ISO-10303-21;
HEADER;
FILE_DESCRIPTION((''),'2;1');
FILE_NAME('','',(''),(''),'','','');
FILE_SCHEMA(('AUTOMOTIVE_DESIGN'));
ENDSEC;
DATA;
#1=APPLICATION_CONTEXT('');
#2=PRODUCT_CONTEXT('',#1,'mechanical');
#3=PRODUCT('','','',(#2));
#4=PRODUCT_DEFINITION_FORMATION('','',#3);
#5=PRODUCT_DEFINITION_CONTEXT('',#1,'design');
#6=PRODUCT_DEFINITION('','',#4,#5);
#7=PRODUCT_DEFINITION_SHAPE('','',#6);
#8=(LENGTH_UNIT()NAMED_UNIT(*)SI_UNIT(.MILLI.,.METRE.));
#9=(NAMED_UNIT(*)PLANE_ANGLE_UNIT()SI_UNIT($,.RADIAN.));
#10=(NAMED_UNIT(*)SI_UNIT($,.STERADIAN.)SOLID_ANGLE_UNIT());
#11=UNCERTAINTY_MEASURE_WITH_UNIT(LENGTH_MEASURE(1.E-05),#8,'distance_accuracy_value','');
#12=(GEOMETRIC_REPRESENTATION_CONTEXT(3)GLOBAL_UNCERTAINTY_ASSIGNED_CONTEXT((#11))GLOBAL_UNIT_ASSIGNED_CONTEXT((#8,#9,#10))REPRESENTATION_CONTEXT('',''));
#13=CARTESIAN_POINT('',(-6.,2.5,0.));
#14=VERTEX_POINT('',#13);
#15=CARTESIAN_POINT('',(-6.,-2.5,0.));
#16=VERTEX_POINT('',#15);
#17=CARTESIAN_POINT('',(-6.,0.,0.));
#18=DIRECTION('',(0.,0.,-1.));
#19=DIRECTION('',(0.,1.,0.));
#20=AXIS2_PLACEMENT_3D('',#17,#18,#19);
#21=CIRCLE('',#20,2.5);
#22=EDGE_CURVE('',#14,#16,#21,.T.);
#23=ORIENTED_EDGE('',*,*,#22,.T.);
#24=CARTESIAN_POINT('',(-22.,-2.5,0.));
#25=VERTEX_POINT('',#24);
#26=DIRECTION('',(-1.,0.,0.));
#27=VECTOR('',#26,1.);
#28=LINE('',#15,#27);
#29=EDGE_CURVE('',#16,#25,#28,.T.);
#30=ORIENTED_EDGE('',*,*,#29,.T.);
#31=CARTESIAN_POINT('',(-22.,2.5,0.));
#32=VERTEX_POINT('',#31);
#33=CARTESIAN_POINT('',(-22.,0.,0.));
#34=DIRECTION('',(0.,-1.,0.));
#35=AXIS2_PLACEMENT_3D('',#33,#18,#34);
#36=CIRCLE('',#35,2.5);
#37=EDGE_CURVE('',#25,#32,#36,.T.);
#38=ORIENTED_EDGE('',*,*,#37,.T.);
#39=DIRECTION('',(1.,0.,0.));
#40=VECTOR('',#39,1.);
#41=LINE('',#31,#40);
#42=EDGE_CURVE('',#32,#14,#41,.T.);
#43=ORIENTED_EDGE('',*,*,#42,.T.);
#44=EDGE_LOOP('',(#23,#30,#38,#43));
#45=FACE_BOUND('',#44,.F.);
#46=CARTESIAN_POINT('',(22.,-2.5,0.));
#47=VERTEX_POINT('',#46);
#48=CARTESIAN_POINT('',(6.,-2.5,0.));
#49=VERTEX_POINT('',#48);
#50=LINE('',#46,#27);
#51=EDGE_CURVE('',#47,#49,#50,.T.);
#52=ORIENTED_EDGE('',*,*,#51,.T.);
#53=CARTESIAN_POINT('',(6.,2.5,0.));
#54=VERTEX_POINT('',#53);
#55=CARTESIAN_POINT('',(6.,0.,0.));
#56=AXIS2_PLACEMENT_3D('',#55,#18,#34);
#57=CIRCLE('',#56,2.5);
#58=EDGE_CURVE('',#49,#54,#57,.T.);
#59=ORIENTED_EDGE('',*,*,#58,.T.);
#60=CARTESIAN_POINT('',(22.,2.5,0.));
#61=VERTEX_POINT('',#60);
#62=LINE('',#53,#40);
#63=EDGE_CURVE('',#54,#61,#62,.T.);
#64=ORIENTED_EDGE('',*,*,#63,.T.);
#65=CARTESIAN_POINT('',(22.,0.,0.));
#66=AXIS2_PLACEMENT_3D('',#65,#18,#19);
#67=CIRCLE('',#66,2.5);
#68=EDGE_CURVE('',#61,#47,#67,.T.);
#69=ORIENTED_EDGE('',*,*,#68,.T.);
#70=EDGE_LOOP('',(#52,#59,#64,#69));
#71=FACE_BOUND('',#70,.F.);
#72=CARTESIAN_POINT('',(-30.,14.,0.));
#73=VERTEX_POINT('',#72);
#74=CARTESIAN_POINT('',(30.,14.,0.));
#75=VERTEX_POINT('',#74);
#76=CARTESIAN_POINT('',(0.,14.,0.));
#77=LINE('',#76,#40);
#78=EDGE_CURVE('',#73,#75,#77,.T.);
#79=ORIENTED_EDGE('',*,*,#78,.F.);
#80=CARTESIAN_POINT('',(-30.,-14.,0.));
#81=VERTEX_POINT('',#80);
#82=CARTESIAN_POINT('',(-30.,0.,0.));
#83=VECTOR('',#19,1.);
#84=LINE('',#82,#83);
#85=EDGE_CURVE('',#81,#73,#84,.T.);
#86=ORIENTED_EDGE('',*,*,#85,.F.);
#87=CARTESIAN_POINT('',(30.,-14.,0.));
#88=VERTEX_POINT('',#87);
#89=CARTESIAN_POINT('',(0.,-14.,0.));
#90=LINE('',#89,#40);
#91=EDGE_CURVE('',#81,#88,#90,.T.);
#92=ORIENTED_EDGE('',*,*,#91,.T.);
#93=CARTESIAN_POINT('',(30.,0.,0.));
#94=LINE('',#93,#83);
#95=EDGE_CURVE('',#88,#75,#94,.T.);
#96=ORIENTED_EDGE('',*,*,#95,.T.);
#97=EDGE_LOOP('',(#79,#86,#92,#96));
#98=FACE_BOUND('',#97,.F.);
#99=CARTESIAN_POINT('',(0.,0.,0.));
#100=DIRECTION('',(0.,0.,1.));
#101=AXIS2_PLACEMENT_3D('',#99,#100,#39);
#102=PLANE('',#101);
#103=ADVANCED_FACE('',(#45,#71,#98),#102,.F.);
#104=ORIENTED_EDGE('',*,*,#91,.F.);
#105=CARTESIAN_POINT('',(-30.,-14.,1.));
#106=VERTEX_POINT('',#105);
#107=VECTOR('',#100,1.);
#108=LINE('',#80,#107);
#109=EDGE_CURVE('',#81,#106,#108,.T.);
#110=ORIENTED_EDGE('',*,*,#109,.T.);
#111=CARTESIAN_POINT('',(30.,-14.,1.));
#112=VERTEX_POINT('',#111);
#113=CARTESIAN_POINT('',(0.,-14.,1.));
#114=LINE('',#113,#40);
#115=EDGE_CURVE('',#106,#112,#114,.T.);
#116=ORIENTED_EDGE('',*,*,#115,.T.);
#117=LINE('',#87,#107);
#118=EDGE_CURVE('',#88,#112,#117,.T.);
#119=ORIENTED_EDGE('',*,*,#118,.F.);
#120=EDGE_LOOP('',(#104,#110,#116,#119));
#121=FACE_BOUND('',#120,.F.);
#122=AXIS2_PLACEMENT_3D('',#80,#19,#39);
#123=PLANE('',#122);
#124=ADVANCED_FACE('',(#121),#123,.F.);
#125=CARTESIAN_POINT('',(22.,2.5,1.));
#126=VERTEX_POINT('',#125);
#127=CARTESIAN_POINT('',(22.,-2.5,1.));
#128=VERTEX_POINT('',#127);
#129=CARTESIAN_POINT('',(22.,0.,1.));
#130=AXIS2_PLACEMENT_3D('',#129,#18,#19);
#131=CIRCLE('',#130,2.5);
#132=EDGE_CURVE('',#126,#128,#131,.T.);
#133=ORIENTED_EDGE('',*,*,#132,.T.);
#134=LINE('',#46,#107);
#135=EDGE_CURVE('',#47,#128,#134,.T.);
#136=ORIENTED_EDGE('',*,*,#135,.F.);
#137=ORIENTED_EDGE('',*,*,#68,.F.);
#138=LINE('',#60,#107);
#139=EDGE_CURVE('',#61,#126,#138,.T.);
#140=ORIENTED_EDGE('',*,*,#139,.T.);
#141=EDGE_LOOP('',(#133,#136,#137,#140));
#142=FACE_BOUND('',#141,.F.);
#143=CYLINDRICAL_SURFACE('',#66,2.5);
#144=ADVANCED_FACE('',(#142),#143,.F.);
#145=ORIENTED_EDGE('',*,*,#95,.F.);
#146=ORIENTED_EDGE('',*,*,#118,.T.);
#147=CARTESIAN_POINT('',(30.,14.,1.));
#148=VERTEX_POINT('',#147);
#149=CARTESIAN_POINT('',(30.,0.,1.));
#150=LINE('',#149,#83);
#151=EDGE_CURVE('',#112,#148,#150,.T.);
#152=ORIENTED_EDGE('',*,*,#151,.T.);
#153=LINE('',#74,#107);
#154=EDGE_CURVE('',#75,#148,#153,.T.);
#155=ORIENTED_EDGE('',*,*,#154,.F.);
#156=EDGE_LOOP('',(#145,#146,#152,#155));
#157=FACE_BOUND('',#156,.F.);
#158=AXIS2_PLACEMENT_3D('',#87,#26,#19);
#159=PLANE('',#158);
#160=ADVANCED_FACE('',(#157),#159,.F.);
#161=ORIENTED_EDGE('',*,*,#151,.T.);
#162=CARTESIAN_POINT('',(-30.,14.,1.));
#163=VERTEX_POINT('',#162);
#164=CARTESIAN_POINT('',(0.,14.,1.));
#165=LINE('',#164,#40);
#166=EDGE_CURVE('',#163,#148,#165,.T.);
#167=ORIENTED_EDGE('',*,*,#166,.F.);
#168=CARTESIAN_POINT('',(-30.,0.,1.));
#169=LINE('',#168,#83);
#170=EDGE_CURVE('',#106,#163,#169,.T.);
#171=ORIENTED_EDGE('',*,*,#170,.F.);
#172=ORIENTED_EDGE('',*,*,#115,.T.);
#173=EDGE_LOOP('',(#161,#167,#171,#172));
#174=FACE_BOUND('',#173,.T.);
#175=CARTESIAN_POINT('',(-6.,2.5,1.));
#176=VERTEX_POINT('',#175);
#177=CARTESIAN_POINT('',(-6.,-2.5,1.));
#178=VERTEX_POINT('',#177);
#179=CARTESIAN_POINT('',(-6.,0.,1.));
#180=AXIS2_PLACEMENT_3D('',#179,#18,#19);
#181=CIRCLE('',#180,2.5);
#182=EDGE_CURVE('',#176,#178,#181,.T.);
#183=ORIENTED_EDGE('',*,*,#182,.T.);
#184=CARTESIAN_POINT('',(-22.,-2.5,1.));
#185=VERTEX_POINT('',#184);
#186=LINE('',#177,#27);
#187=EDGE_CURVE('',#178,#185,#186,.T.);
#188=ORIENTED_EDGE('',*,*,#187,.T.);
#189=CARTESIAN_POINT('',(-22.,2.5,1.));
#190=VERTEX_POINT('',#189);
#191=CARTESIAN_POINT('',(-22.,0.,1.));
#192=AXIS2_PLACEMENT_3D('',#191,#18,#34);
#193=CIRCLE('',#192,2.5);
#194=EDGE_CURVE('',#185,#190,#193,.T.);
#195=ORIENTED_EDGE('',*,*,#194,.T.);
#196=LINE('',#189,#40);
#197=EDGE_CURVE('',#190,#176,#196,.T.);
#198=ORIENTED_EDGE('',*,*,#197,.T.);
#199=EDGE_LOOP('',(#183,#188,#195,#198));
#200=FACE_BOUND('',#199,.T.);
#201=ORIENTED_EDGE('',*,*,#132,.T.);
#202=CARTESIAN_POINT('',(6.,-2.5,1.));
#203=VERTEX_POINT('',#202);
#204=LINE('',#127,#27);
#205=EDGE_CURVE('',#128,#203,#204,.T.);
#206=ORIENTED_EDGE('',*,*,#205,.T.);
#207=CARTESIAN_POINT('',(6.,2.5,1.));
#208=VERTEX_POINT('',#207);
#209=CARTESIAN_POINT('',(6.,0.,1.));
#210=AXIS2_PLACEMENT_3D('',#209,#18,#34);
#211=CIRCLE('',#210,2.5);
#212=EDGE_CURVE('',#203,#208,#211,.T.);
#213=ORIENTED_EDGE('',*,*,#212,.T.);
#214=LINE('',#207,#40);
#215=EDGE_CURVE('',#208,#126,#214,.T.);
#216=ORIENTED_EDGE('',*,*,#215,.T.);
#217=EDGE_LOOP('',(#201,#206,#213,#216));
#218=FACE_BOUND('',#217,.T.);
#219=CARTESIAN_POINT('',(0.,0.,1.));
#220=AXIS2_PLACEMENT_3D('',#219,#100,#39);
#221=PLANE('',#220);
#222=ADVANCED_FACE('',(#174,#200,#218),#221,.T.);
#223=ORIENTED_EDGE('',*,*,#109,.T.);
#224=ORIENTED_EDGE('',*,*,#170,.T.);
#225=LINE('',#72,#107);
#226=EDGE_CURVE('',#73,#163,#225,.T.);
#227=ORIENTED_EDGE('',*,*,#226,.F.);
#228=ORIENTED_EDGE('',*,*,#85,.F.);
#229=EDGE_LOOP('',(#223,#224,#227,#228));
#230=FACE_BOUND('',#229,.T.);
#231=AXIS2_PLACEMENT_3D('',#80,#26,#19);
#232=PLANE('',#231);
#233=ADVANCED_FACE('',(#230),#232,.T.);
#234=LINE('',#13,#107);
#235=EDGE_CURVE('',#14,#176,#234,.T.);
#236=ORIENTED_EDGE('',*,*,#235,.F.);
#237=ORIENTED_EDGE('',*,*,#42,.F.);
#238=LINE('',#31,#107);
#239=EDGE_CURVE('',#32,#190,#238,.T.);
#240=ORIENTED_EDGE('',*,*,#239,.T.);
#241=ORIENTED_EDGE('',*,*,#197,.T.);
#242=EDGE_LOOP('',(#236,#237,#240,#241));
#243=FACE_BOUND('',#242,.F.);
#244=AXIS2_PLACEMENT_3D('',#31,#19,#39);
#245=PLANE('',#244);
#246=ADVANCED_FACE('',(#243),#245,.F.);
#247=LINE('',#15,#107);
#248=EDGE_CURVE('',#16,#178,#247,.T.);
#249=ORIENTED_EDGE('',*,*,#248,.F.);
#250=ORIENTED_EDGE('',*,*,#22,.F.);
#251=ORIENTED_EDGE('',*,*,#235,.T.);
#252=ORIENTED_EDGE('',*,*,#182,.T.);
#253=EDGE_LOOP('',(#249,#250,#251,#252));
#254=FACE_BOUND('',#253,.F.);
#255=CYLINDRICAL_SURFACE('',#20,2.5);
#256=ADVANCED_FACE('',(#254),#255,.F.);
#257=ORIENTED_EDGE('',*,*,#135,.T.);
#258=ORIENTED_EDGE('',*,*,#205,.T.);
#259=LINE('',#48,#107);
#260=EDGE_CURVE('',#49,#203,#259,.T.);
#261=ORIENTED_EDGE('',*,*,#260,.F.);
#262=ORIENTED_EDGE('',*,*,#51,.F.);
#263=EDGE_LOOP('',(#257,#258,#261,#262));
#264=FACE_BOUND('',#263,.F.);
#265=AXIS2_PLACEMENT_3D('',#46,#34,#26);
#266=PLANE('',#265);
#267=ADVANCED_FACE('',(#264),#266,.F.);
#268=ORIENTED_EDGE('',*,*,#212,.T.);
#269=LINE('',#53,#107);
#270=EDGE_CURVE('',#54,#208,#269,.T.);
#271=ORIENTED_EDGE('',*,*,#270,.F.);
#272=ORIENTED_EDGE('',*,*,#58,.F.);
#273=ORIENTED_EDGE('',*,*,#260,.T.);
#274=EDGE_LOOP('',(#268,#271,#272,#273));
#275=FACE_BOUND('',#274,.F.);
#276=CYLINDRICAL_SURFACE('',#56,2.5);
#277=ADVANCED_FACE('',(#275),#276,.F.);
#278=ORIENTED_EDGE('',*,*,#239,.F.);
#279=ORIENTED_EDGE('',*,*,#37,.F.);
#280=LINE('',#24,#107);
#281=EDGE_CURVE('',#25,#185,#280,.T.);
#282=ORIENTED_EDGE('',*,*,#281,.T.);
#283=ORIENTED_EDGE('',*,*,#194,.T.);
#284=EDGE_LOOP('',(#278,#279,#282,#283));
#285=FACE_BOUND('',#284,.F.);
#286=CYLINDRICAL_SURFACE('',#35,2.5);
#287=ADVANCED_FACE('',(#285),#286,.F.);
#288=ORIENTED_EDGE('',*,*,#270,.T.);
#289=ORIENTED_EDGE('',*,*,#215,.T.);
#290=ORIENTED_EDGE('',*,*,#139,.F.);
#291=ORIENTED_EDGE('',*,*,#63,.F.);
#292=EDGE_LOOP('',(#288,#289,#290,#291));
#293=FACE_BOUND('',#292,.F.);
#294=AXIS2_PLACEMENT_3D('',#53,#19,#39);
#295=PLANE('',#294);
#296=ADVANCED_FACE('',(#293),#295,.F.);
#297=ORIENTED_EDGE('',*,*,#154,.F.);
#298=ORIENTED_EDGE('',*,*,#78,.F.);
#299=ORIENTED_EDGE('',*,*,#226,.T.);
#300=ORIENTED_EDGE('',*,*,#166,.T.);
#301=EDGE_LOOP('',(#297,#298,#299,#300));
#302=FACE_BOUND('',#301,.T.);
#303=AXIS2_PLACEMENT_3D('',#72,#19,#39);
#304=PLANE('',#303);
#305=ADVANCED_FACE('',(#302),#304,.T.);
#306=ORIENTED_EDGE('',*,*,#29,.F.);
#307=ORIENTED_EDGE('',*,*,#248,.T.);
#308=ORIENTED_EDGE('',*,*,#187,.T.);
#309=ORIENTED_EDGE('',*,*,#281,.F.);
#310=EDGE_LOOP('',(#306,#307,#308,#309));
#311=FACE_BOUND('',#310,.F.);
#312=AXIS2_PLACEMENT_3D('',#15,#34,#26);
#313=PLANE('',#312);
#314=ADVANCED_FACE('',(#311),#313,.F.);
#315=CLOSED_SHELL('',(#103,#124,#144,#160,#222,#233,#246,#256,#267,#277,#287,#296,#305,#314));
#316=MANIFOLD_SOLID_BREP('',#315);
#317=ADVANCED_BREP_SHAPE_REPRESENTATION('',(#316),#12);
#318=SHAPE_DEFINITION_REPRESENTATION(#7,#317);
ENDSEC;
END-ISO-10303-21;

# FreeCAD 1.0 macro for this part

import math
import FreeCAD as App
import Part
import Sketcher
from FreeCAD import Vector

doc = App.newDocument("Part")
body = doc.addObject("PartDesign::Body", "Body")

# Sketch on XY plane
sketch1 = doc.addObject("Sketcher::SketchObject", "Sketch")
body.addObject(sketch1)
sketch1.AttachmentSupport = (doc.XY_Plane, [""])
sketch1.MapMode = "FlatFace"
sketch1.addGeometry(Part.LineSegment(Vector(-30, 14, 0), Vector(-30, -14, 0)), False)
sketch1.addGeometry(Part.LineSegment(Vector(-30, -14, 0), Vector(30, -14, 0)), False)
sketch1.addGeometry(Part.LineSegment(Vector(30, -14, 0), Vector(30, 14, 0)), False)
sketch1.addGeometry(Part.LineSegment(Vector(30, 14, 0), Vector(-30, 14, 0)), False)
sketch1.addGeometry(Part.LineSegment(Vector(-22, 2.5, 0), Vector(-6, 2.5, 0)), False)
sketch1.addGeometry(Part.ArcOfCircle(Part.Circle(Vector(-6, 0, 0), Vector(0, 0, 1), 2.5), math.radians(-90), math.radians(90)), False)
sketch1.addGeometry(Part.LineSegment(Vector(-6, -2.5, 0), Vector(-22, -2.5, 0)), False)
sketch1.addGeometry(Part.ArcOfCircle(Part.Circle(Vector(-22, 0, 0), Vector(0, 0, 1), 2.5), math.radians(90), math.radians(270)), False)
sketch1.addGeometry(Part.LineSegment(Vector(22, -2.5, 0), Vector(6, -2.5, 0)), False)
sketch1.addGeometry(Part.ArcOfCircle(Part.Circle(Vector(6, 0, 0), Vector(0, 0, 1), 2.5), math.radians(90), math.radians(270)), False)
sketch1.addGeometry(Part.LineSegment(Vector(6, 2.5, 0), Vector(22, 2.5, 0)), False)
sketch1.addGeometry(Part.ArcOfCircle(Part.Circle(Vector(22, 0, 0), Vector(0, 0, 1), 2.5), math.radians(-90), math.radians(90)), False)
sketch1.addConstraint(Sketcher.Constraint("Coincident", 0, 2, 1, 1))
sketch1.addConstraint(Sketcher.Constraint("Coincident", 1, 2, 2, 1))
sketch1.addConstraint(Sketcher.Constraint("Coincident", 2, 2, 3, 1))
sketch1.addConstraint(Sketcher.Constraint("Coincident", 3, 2, 0, 1))
sketch1.addConstraint(Sketcher.Constraint("Tangent", 4, 2, 5, 2))
sketch1.addConstraint(Sketcher.Constraint("Tangent", 5, 1, 6, 1))
sketch1.addConstraint(Sketcher.Constraint("Tangent", 6, 2, 7, 2))
sketch1.addConstraint(Sketcher.Constraint("Tangent", 7, 1, 4, 1))
sketch1.addConstraint(Sketcher.Constraint("Tangent", 8, 2, 9, 2))
sketch1.addConstraint(Sketcher.Constraint("Tangent", 9, 1, 10, 1))
sketch1.addConstraint(Sketcher.Constraint("Tangent", 10, 2, 11, 2))
sketch1.addConstraint(Sketcher.Constraint("Tangent", 11, 1, 8, 1))
sketch1.addConstraint(Sketcher.Constraint("Vertical", 0))
sketch1.addConstraint(Sketcher.Constraint("Horizontal", 1))
sketch1.addConstraint(Sketcher.Constraint("Vertical", 2))
sketch1.addConstraint(Sketcher.Constraint("Horizontal", 3))
sketch1.addConstraint(Sketcher.Constraint("Horizontal", 4))
sketch1.addConstraint(Sketcher.Constraint("Horizontal", 6))
sketch1.addConstraint(Sketcher.Constraint("Horizontal", 8))
sketch1.addConstraint(Sketcher.Constraint("Horizontal", 10))
sketch1.addConstraint(Sketcher.Constraint("Equal", 7, 9))
sketch1.addConstraint(Sketcher.Constraint("Symmetric", 5, 3, 9, 3, -1, 1))
sketch1.addConstraint(Sketcher.Constraint("Symmetric", 0, 2, 2, 2, -1, 1))
sketch1.addConstraint(Sketcher.Constraint("Symmetric", 7, 3, 11, 3, -2))
sketch1.addConstraint(Sketcher.Constraint("Radius", 5, 2.5))
sketch1.addConstraint(Sketcher.Constraint("DistanceX", 1, 1, 1, 2, 60.0))
sketch1.addConstraint(Sketcher.Constraint("DistanceX", 4, 1, 4, 2, 16.0))
sketch1.addConstraint(Sketcher.Constraint("DistanceY", 0, 2, 0, 1, 28.0))
sketch1.addConstraint(Sketcher.Constraint("DistanceX", 5, 3, -1, 1, 6.0))
pad1 = doc.addObject("PartDesign::Pad", "Pad")
body.addObject(pad1)
pad1.Profile = sketch1
pad1.Length = 1

doc.recompute()
